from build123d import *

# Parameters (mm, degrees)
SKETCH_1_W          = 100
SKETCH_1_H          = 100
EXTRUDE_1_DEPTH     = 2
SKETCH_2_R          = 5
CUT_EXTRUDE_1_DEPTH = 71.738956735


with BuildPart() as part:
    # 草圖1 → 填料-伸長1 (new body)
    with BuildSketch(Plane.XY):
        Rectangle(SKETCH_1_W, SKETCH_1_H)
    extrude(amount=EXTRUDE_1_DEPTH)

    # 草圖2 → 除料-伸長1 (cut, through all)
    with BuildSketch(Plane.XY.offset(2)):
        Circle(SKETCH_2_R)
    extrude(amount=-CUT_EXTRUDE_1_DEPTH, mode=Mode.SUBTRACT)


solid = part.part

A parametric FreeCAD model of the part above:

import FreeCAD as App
import Part
import Sketcher

V = App.Vector


def add_polygon(sketch, points):
    """Adds a closed chain of lines whose ends are joined by coincident constraints."""
    first, n = sketch.GeometryCount, len(points)
    for a, b in zip(points, points[1:] + points[:1]):
        sketch.addGeometry(Part.LineSegment(App.Vector(*a, 0), App.Vector(*b, 0)), False)
    for i in range(n):
        sketch.addConstraint(Sketcher.Constraint("Coincident", first + i, 2, first + (i + 1) % n, 1))

doc = App.newDocument("Part")
body = doc.addObject("PartDesign::Body", "Body")

# Sketch on XY plane
sketch1 = doc.addObject("Sketcher::SketchObject", "Sketch")
body.addObject(sketch1)
sketch1.AttachmentSupport = (doc.XY_Plane, [""])
sketch1.MapMode = "FlatFace"
add_polygon(sketch1, [(-50, 50), (-50, -50), (50, -50), (50, 50)])  # lines 0-3
sketch1.addConstraint([
    Sketcher.Constraint("Vertical", 0),
    Sketcher.Constraint("Horizontal", 1),
    Sketcher.Constraint("Vertical", 2),
    Sketcher.Constraint("Horizontal", 3),
    Sketcher.Constraint("Symmetric", 0, 2, 2, 2, -1, 1),
    Sketcher.Constraint("Equal", 3, 0),
    Sketcher.Constraint("DistanceX", 1, 1, 1, 2, 100.0),
])
pad1 = doc.addObject("PartDesign::Pad", "Pad")
body.addObject(pad1)
pad1.Profile = sketch1
pad1.Length = 2

# Sketch on XY plane
sketch2 = doc.addObject("Sketcher::SketchObject", "Sketch001")
body.addObject(sketch2)
sketch2.AttachmentSupport = (doc.XY_Plane, [""])
sketch2.MapMode = "FlatFace"
sketch2.AttachmentOffset = App.Placement(V(0, 0, 2), App.Rotation())
sketch2.addGeometry(Part.Circle(V(0, 0, 0), V(0, 0, 1), 5), False)
sketch2.addConstraint([
    Sketcher.Constraint("Coincident", 0, 3, -1, 1),
    Sketcher.Constraint("Diameter", 0, 10.0),
])
pocket1 = doc.addObject("PartDesign::Pocket", "Pocket")
body.addObject(pocket1)
pocket1.Profile = sketch2
pocket1.Type = "ThroughAll"

doc.recompute()
